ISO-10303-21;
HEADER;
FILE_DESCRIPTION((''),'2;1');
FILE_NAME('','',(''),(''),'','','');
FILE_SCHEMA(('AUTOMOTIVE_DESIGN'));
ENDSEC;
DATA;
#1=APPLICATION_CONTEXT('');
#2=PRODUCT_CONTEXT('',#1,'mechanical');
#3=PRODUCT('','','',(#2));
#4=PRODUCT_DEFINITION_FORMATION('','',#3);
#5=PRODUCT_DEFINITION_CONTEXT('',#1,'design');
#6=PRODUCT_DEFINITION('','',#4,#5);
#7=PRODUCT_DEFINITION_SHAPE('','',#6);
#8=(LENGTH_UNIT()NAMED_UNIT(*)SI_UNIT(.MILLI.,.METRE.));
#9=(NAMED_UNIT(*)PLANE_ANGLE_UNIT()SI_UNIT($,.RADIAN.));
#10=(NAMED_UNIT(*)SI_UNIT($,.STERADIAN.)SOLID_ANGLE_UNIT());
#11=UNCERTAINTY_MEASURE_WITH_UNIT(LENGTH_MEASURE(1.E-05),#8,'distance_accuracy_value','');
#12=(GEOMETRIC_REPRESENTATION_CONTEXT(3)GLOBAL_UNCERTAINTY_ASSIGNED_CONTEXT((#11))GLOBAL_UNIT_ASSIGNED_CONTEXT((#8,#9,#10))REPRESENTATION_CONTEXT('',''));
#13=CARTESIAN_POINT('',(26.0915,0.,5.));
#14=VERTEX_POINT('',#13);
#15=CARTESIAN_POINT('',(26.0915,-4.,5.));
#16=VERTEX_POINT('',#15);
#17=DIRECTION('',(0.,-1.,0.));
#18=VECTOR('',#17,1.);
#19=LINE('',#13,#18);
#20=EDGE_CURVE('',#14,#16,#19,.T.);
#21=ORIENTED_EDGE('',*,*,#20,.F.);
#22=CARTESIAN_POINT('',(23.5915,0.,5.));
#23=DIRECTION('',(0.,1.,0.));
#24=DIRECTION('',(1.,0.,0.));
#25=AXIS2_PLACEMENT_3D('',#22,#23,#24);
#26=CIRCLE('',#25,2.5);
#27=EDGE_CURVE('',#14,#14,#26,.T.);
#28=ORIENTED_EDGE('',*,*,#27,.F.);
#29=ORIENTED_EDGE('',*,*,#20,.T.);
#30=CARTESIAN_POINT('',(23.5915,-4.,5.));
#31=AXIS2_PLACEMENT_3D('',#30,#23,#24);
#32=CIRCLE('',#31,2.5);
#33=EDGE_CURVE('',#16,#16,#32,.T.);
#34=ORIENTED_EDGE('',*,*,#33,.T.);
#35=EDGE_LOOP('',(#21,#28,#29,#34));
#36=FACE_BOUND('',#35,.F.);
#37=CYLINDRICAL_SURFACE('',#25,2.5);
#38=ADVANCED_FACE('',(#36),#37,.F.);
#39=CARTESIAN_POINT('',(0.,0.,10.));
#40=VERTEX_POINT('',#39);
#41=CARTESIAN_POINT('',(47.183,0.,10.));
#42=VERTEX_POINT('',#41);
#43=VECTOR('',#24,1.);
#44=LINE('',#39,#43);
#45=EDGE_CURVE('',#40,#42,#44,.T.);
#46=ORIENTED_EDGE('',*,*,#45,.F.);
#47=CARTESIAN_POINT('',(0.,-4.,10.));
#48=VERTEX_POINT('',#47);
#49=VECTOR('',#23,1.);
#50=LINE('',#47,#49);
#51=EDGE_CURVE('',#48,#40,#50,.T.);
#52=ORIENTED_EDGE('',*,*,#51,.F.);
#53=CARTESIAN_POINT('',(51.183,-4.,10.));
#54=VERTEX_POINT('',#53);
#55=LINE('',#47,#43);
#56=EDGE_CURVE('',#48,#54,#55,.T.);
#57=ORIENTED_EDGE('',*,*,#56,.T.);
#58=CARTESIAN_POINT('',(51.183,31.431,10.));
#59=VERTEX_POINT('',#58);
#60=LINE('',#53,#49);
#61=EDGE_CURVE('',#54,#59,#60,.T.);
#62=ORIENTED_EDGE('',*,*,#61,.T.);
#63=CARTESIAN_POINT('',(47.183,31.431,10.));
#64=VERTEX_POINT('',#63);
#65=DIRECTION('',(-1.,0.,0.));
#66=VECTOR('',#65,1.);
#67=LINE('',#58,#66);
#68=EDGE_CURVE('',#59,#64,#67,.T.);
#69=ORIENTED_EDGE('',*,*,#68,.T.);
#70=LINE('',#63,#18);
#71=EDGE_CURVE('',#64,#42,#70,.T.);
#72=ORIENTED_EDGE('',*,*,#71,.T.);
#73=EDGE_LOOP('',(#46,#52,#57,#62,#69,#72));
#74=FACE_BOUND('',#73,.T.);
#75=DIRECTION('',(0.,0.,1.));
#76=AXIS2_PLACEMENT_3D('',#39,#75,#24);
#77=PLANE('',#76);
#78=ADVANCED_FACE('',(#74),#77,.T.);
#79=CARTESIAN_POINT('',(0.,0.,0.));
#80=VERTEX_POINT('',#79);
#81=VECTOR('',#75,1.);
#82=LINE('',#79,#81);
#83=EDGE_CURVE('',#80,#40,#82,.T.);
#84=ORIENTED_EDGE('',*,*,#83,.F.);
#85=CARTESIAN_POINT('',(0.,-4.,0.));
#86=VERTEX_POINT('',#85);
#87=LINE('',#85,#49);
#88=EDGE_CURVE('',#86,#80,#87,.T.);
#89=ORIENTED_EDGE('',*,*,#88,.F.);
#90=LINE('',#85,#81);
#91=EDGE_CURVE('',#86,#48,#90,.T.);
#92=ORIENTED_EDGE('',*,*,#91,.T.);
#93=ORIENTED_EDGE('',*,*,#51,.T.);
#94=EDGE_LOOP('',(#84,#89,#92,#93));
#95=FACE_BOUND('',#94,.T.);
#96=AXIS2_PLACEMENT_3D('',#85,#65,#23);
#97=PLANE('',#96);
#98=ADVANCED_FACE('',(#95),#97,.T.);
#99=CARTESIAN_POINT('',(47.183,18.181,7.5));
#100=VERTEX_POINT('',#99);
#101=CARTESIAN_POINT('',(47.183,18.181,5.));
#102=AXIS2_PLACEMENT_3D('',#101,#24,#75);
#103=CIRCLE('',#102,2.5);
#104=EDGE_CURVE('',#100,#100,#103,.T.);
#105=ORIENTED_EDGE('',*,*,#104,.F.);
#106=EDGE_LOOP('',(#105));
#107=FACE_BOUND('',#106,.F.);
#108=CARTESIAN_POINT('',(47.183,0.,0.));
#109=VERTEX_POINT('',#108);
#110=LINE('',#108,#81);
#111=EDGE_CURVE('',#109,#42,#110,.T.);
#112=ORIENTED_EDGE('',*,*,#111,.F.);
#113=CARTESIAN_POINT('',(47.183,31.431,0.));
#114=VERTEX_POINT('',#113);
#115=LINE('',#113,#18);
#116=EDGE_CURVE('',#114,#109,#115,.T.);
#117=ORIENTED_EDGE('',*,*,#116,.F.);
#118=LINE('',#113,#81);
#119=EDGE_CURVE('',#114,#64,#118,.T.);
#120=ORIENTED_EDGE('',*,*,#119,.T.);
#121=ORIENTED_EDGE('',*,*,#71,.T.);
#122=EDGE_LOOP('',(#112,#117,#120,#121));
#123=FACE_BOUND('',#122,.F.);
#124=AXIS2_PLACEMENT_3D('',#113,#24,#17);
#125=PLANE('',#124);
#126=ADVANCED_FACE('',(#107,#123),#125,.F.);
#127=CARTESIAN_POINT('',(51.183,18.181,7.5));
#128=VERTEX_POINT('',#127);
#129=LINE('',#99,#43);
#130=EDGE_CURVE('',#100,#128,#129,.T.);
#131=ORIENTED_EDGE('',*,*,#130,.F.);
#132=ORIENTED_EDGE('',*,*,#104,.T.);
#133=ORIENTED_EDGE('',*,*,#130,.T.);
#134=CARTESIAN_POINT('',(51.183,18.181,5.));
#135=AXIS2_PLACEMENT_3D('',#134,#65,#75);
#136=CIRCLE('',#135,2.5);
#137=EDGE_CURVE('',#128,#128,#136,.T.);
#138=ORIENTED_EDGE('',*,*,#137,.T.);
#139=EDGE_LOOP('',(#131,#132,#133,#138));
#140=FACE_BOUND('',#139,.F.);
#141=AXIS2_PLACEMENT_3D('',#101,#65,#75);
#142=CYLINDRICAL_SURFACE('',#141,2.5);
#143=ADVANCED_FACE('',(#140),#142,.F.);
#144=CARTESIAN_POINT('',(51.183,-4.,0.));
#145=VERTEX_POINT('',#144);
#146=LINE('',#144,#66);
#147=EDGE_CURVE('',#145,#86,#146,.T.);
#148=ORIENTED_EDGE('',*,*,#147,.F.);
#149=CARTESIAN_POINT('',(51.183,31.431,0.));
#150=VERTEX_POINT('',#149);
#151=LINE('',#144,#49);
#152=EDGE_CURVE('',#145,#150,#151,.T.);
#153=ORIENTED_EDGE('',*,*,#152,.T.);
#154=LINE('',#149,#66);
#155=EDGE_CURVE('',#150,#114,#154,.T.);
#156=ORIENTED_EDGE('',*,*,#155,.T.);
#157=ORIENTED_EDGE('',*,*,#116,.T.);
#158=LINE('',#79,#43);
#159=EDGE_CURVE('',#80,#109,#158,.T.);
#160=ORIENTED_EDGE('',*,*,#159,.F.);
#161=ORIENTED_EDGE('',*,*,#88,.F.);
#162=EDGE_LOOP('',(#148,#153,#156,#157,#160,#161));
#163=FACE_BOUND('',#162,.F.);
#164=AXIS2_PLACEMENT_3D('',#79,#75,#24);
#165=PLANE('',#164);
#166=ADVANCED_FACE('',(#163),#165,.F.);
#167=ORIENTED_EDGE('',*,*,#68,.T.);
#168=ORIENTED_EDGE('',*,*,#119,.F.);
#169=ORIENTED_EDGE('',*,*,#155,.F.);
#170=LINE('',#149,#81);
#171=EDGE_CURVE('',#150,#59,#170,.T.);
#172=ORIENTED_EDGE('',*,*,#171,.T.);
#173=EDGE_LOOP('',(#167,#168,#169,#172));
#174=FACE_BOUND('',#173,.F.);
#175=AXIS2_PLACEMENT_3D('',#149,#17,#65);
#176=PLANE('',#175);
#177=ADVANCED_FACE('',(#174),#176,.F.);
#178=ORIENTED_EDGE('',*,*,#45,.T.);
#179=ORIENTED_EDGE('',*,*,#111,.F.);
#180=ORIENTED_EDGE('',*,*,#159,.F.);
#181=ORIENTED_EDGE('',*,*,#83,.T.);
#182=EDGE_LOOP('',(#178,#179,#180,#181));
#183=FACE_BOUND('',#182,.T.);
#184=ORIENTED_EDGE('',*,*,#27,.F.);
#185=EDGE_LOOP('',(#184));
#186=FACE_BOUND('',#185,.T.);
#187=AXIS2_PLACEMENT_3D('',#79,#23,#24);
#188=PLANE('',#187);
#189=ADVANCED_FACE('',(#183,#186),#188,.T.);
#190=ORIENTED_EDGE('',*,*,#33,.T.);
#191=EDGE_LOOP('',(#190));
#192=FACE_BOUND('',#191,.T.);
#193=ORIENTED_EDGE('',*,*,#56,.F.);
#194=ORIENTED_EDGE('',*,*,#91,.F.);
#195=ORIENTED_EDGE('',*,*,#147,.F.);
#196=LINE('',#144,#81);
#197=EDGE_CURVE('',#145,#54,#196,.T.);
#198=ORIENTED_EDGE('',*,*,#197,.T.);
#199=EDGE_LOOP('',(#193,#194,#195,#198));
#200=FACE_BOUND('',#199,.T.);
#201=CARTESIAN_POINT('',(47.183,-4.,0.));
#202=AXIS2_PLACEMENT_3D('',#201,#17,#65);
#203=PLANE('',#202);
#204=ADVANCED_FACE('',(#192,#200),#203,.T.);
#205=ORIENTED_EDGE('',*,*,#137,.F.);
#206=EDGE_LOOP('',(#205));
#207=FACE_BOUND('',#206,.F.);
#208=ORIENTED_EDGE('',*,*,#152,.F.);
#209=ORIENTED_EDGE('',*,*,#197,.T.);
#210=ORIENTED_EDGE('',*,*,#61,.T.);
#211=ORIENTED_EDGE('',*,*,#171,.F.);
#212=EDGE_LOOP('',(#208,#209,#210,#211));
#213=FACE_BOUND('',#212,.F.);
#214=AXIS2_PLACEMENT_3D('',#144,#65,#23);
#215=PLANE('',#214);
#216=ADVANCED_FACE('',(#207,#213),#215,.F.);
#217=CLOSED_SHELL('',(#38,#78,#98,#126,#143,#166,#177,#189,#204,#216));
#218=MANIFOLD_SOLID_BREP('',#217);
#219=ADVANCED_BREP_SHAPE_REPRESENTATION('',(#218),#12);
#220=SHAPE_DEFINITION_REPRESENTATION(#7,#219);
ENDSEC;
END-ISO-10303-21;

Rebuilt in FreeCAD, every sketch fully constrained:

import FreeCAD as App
import Part
import Sketcher

V = App.Vector
Q = App.Units.Quantity

doc = App.newDocument("Part")
body = doc.addObject("PartDesign::Body", "Body")

sketch1 = body.newObject("Sketcher::SketchObject", "Sketch")
sketch1.AttachmentSupport = (doc.getObject("XY_Plane"), [""])
sketch1.MapMode = "FlatFace"
sketch1.addGeometry([
    Part.LineSegment(V(47.183, 0, 0), V(0, 0, 0)),
    Part.LineSegment(V(0, 0, 0), V(0, -4, 0)),
    Part.LineSegment(V(0, -4, 0), V(51.183, -4, 0)),
    Part.LineSegment(V(51.183, -4, 0), V(51.183, 31.431, 0)),
    Part.LineSegment(V(51.183, 31.431, 0), V(47.183, 31.431, 0)),
    Part.LineSegment(V(47.183, 31.431, 0), V(47.183, 0, 0)),
], False)
sketch1.addConstraint([
    Sketcher.Constraint("Coincident", 0, 2, 1, 1),
    Sketcher.Constraint("Coincident", 1, 2, 2, 1),
    Sketcher.Constraint("Coincident", 2, 2, 3, 1),
    Sketcher.Constraint("Coincident", 3, 2, 4, 1),
    Sketcher.Constraint("Coincident", 4, 2, 5, 1),
    Sketcher.Constraint("Coincident", 5, 2, 0, 1),
    Sketcher.Constraint("Horizontal", 0),
    Sketcher.Constraint("Vertical", 1),
    Sketcher.Constraint("Horizontal", 2),
    Sketcher.Constraint("Vertical", 3),
    Sketcher.Constraint("Horizontal", 4),
    Sketcher.Constraint("Vertical", 5),
    Sketcher.Constraint("Coincident", 0, 2, -1, 1),
    Sketcher.Constraint("Equal", 4, 1),
    Sketcher.Constraint("DistanceX", 4, 2, 4, 1, Q("4 mm")),
    Sketcher.Constraint("DistanceX", 0, 2, 0, 1, Q("47.183 mm")),
    Sketcher.Constraint("DistanceY", 5, 2, 5, 1, Q("31.431 mm")),
])
pad1 = body.newObject("PartDesign::Pad", "Pad")
pad1.Profile = sketch1
pad1.Length = 10

sketch2 = body.newObject("Sketcher::SketchObject", "Sketch001")
sketch2.AttachmentSupport = (doc.getObject("XZ_Plane"), [""])
sketch2.MapMode = "FlatFace"
sketch2.addGeometry(Part.Circle(V(23.5915, 5, 0), V(0, 0, 1), 2.5), False)
sketch2.addConstraint([
    Sketcher.Constraint("Diameter", 0, Q("5 mm")),
    Sketcher.Constraint("DistanceY", -1, 1, 0, 3, Q("5 mm")),
    Sketcher.Constraint("DistanceX", -1, 1, 0, 3, Q("23.5915 mm")),
])
pocket1 = body.newObject("PartDesign::Pocket", "Pocket")
pocket1.Profile = sketch2
pocket1.Length = 9.25
pocket1.Reversed = True

sketch3 = body.newObject("Sketcher::SketchObject", "Sketch002")
sketch3.AttachmentSupport = (doc.getObject("YZ_Plane"), [""])
sketch3.MapMode = "FlatFace"
sketch3.AttachmentOffset = App.Placement(V(0, 0, 47.183), App.Rotation())
sketch3.addGeometry(Part.Circle(V(18.181, 5, 0), V(0, 0, 1), 2.5), False)
sketch3.addConstraint([
    Sketcher.Constraint("Diameter", 0, Q("5 mm")),
    Sketcher.Constraint("DistanceY", -1, 1, 0, 3, Q("5 mm")),
    Sketcher.Constraint("DistanceX", -1, 1, 0, 3, Q("18.181 mm")),
])
pocket2 = body.newObject("PartDesign::Pocket", "Pocket001")
pocket2.Profile = sketch3
pocket2.Length = 8.75
pocket2.Reversed = True

doc.recompute()
